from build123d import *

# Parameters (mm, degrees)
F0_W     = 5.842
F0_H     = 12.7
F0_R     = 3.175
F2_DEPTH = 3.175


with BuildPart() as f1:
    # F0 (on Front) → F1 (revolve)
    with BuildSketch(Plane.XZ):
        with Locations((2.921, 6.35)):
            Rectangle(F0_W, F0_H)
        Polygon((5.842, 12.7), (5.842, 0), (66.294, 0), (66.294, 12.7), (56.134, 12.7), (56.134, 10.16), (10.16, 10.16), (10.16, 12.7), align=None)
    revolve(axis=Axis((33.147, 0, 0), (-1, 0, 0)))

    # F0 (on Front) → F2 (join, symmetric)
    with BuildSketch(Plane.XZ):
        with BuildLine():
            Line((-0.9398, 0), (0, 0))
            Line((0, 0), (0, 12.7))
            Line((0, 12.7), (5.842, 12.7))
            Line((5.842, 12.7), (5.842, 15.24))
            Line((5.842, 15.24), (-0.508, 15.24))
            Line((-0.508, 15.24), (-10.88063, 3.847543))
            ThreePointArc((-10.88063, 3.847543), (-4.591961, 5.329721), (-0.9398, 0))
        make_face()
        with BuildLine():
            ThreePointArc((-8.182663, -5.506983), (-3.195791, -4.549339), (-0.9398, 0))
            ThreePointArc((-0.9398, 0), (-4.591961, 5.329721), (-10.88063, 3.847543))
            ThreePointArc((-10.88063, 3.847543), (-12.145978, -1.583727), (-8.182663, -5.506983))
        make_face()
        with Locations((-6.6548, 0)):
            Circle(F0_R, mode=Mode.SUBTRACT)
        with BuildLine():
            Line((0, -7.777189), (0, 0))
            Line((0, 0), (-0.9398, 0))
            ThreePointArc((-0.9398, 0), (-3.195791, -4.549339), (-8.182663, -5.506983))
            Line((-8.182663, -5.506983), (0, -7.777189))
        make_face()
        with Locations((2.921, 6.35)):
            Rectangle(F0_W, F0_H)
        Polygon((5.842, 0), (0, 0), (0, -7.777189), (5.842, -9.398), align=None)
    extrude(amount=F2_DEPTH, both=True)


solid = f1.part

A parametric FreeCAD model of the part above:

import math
import FreeCAD as App
import Part
import Sketcher

V = App.Vector
Q = App.Units.Quantity


def add_polygon(sketch, points):
    """Adds a closed chain of lines whose ends are joined by coincident constraints."""
    first, n = sketch.GeometryCount, len(points)
    for a, b in zip(points, points[1:] + points[:1]):
        sketch.addGeometry(Part.LineSegment(App.Vector(*a, 0), App.Vector(*b, 0)), False)
    for i in range(n):
        sketch.addConstraint(Sketcher.Constraint("Coincident", first + i, 2, first + (i + 1) % n, 1))

doc = App.newDocument("Part")
body = doc.addObject("PartDesign::Body", "Body")

sketch1 = body.newObject("Sketcher::SketchObject", "Sketch")
sketch1.AttachmentSupport = (doc.getObject("XZ_Plane"), [""])
sketch1.MapMode = "FlatFace"
add_polygon(sketch1, [(0, 12.7), (0, 0), (66.294, 0), (66.294, 12.7), (56.134, 12.7), (56.134, 10.16), (10.16, 10.16), (10.16, 12.7)])
sketch1.addConstraint(Sketcher.Constraint("Vertical", 0))
sketch1.addConstraint(Sketcher.Constraint("Horizontal", 1))
sketch1.addConstraint(Sketcher.Constraint("Vertical", 2))
sketch1.addConstraint(Sketcher.Constraint("Horizontal", 3))
sketch1.addConstraint(Sketcher.Constraint("Vertical", 4))
sketch1.addConstraint(Sketcher.Constraint("Horizontal", 5))
sketch1.addConstraint(Sketcher.Constraint("Vertical", 6))
sketch1.addConstraint(Sketcher.Constraint("Horizontal", 7))
sketch1.addConstraint(Sketcher.Constraint("Coincident", 0, 2, -1, 1))
sketch1.addConstraint(Sketcher.Constraint("Horizontal", 3, 2, 6, 2))
sketch1.addConstraint(Sketcher.Constraint("Equal", 3, 7))
sketch1.addConstraint(Sketcher.Constraint("DistanceX", 3, 2, 3, 1, Q("0.4 in")))
sketch1.addConstraint(Sketcher.Constraint("DistanceY", 0, 2, 0, 1, Q("0.5 in")))
sketch1.addConstraint(Sketcher.Constraint("DistanceY", 4, 2, 4, 1, Q("0.1 in")))
sketch1.addConstraint(Sketcher.Constraint("DistanceX", 1, 1, 1, 2, Q("2.61 in")))
revolution = body.newObject("PartDesign::Revolution", "Revolution")
revolution.Profile = sketch1
revolution.ReferenceAxis = (sketch1, ["H_Axis"])
revolution.Angle = 360

sketch2 = body.newObject("Sketcher::SketchObject", "Sketch001")
sketch2.AttachmentSupport = (doc.getObject("XZ_Plane"), [""])
sketch2.MapMode = "FlatFace"
sketch2.addGeometry(Part.LineSegment(V(5.842, 15.24, 0), V(-0.508, 15.24, 0)), False)
sketch2.addGeometry(Part.LineSegment(V(-0.508, 15.24, 0), V(-10.88063, 3.847543, 0)), False)
sketch2.addGeometry(Part.ArcOfCircle(Part.Circle(V(-6.6548, 0, 0), V(0, 0, 1), 5.715), math.radians(137.682696), math.radians(254.493803)), False)
sketch2.addGeometry(Part.LineSegment(V(-8.182663, -5.506983, 0), V(0, -7.777189, 0)), False)
sketch2.addGeometry(Part.LineSegment(V(0, -7.777189, 0), V(5.842, -9.398, 0)), False)
sketch2.addGeometry(Part.LineSegment(V(5.842, -9.398, 0), V(5.842, 15.24, 0)), False)
sketch2.addGeometry(Part.Circle(V(-6.6548, 0, 0), V(0, 0, 1), 3.175), False)
sketch2.addConstraint(Sketcher.Constraint("Coincident", 0, 2, 1, 1))
sketch2.addConstraint(Sketcher.Constraint("Tangent", 1, 2, 2, 1))
sketch2.addConstraint(Sketcher.Constraint("Tangent", 2, 2, 3, 1))
sketch2.addConstraint(Sketcher.Constraint("Coincident", 3, 2, 4, 1))
sketch2.addConstraint(Sketcher.Constraint("Coincident", 4, 2, 5, 1))
sketch2.addConstraint(Sketcher.Constraint("Coincident", 5, 2, 0, 1))
sketch2.addConstraint(Sketcher.Constraint("Horizontal", 0))
sketch2.addConstraint(Sketcher.Constraint("Vertical", 5))
sketch2.addConstraint(Sketcher.Constraint("Coincident", 6, 3, 2, 3))
sketch2.addConstraint(Sketcher.Constraint("PointOnObject", 2, 3, -1))
sketch2.addConstraint(Sketcher.Constraint("PointOnObject", 3, 2, -2))
sketch2.addConstraint(Sketcher.Constraint("Parallel", 3, 4))
sketch2.addConstraint(Sketcher.Constraint("Diameter", 6, Q("0.25 in")))
sketch2.addConstraint(Sketcher.Constraint("Radius", 2, Q("0.225 in")))
sketch2.addConstraint(Sketcher.Constraint("DistanceX", 0, 2, 0, 1, Q("0.25 in")))
sketch2.addConstraint(Sketcher.Constraint("DistanceY", 5, 1, 5, 2, Q("0.97 in")))
sketch2.addConstraint(Sketcher.Constraint("DistanceY", -1, 1, 0, 2, Q("0.6 in")))
sketch2.addConstraint(Sketcher.Constraint("DistanceX", 0, 2, -1, 1, Q("0.02 in")))
sketch2.addConstraint(Sketcher.Constraint("DistanceX", 2, 3, -1, 1, Q("0.262 in")))
pad1 = body.newObject("PartDesign::Pad", "Pad")
pad1.Profile = sketch2
pad1.Length = Q("0.25 in")
pad1.Midplane = True

doc.recompute()
